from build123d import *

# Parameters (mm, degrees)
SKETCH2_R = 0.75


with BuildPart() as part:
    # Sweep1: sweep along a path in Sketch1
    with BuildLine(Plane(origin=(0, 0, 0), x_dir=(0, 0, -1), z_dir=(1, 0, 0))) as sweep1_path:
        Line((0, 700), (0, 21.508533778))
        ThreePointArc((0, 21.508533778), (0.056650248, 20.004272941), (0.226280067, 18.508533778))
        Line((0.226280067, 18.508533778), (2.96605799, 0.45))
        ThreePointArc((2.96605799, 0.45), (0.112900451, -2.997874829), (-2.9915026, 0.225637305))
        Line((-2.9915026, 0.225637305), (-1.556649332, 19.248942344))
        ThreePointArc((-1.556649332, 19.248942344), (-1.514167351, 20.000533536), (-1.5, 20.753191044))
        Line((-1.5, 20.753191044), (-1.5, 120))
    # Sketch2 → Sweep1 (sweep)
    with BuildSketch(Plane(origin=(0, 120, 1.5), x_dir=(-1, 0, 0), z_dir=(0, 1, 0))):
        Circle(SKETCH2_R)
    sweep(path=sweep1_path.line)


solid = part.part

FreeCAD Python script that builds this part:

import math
import FreeCAD as App
import Part
import Sketcher

V = App.Vector

doc = App.newDocument("Part")
params = doc.addObject("Spreadsheet::Sheet", "Params")
for row, (alias, value) in enumerate([
    ("sketch1_diameter", "1.5 mm"),
    ("sketch2_radius", "20 mm"),
    ("sketch2_radius2", "3 mm"),
], start=1):
    params.set(f"A{row}", alias)
    params.set(f"B{row}", "=" + value)
    params.setAlias(f"B{row}", alias)

body = doc.addObject("PartDesign::Body", "Body")

sketch1 = doc.addObject("Sketcher::SketchObject", "Sketch")
body.addObject(sketch1)
sketch1.AttachmentSupport = (doc.XZ_Plane, [""])
sketch1.MapMode = "FlatFace"
sketch1.AttachmentOffset = App.Placement(V(0, 0, -120), App.Rotation())
sketch1.addGeometry(Part.Circle(V(0, 1.5, 0), V(0, 0, 1), 0.8), False)
sketch1.addConstraint([
    Sketcher.Constraint("PointOnObject", 0, 3, -2),
    Sketcher.Constraint("Diameter", 0, 1.5),
    Sketcher.Constraint("DistanceY", -1, 1, 0, 3, 1.5),
])
sketch1.setExpression("Constraints[1]", "Params.sketch1_diameter")

sketch2 = doc.addObject("Sketcher::SketchObject", "Sketch001")
body.addObject(sketch2)
sketch2.AttachmentSupport = (doc.YZ_Plane, [""])
sketch2.MapMode = "FlatFace"
sketch2.addGeometry([
    Part.LineSegment(V(700, 0, 0), V(21.5, 0, 0)),
    Part.ArcOfCircle(Part.Circle(V(21.5, -20, 0), V(0, 0, 1), 20), math.radians(90), math.radians(98.63)),
    Part.LineSegment(V(18.5, -0.2, 0), V(0.5, -3, 0)),
    Part.ArcOfCircle(Part.Circle(V(0, 0, 0), V(0, 0, 1), 3), math.radians(86), math.radians(279)),
    Part.LineSegment(V(0.2, 3, 0), V(19.2, 1.6, 0)),
    Part.ArcOfCircle(Part.Circle(V(20.8, 21.5, 0), V(0, 0, 1), 20), math.radians(-94.31), math.radians(-90)),
    Part.LineSegment(V(20.8, 1.5, 0), V(120, 1.5, 0)),
], False)
sketch2.addConstraint([
    Sketcher.Constraint("Tangent", 0, 2, 1, 1),
    Sketcher.Constraint("Tangent", 1, 2, 2, 1),
    Sketcher.Constraint("Tangent", 2, 2, 3, 2),
    Sketcher.Constraint("Tangent", 3, 1, 4, 1),
    Sketcher.Constraint("Tangent", 4, 2, 5, 1),
    Sketcher.Constraint("Tangent", 5, 2, 6, 1),
    Sketcher.Constraint("Horizontal", 0),
    Sketcher.Constraint("Horizontal", 6),
    Sketcher.Constraint("Coincident", 3, 3, -1, 1),
    Sketcher.Constraint("Equal", 1, 5),
    Sketcher.Constraint("PointOnObject", 0, 1, -1),
    Sketcher.Constraint("Radius", 1, 20.0),
    Sketcher.Constraint("Radius", 3, 3.0),
    Sketcher.Constraint("DistanceX", -1, 1, 0, 1, 700.0),
    Sketcher.Constraint("DistanceX", -1, 1, 6, 2, 120.0),
    Sketcher.Constraint("DistanceX", 1, 2, 0, 2, 3.0),
    Sketcher.Constraint("DistanceY", -1, 1, 5, 3, 21.5),
    Sketcher.Constraint("DistanceX", 6, 1, 6, 2, 99.246809),
])
sketch2.setExpression("Constraints[11]", "Params.sketch2_radius")
sketch2.setExpression("Constraints[12]", "Params.sketch2_radius2")
doc.recompute()

additivepipe = doc.addObject("PartDesign::AdditivePipe", "AdditivePipe")
body.addObject(additivepipe)
additivepipe.Profile = sketch1
additivepipe.Spine = (sketch2, ["Edge1", "Edge2", "Edge3", "Edge4", "Edge5", "Edge6", "Edge7"])

doc.recompute()
